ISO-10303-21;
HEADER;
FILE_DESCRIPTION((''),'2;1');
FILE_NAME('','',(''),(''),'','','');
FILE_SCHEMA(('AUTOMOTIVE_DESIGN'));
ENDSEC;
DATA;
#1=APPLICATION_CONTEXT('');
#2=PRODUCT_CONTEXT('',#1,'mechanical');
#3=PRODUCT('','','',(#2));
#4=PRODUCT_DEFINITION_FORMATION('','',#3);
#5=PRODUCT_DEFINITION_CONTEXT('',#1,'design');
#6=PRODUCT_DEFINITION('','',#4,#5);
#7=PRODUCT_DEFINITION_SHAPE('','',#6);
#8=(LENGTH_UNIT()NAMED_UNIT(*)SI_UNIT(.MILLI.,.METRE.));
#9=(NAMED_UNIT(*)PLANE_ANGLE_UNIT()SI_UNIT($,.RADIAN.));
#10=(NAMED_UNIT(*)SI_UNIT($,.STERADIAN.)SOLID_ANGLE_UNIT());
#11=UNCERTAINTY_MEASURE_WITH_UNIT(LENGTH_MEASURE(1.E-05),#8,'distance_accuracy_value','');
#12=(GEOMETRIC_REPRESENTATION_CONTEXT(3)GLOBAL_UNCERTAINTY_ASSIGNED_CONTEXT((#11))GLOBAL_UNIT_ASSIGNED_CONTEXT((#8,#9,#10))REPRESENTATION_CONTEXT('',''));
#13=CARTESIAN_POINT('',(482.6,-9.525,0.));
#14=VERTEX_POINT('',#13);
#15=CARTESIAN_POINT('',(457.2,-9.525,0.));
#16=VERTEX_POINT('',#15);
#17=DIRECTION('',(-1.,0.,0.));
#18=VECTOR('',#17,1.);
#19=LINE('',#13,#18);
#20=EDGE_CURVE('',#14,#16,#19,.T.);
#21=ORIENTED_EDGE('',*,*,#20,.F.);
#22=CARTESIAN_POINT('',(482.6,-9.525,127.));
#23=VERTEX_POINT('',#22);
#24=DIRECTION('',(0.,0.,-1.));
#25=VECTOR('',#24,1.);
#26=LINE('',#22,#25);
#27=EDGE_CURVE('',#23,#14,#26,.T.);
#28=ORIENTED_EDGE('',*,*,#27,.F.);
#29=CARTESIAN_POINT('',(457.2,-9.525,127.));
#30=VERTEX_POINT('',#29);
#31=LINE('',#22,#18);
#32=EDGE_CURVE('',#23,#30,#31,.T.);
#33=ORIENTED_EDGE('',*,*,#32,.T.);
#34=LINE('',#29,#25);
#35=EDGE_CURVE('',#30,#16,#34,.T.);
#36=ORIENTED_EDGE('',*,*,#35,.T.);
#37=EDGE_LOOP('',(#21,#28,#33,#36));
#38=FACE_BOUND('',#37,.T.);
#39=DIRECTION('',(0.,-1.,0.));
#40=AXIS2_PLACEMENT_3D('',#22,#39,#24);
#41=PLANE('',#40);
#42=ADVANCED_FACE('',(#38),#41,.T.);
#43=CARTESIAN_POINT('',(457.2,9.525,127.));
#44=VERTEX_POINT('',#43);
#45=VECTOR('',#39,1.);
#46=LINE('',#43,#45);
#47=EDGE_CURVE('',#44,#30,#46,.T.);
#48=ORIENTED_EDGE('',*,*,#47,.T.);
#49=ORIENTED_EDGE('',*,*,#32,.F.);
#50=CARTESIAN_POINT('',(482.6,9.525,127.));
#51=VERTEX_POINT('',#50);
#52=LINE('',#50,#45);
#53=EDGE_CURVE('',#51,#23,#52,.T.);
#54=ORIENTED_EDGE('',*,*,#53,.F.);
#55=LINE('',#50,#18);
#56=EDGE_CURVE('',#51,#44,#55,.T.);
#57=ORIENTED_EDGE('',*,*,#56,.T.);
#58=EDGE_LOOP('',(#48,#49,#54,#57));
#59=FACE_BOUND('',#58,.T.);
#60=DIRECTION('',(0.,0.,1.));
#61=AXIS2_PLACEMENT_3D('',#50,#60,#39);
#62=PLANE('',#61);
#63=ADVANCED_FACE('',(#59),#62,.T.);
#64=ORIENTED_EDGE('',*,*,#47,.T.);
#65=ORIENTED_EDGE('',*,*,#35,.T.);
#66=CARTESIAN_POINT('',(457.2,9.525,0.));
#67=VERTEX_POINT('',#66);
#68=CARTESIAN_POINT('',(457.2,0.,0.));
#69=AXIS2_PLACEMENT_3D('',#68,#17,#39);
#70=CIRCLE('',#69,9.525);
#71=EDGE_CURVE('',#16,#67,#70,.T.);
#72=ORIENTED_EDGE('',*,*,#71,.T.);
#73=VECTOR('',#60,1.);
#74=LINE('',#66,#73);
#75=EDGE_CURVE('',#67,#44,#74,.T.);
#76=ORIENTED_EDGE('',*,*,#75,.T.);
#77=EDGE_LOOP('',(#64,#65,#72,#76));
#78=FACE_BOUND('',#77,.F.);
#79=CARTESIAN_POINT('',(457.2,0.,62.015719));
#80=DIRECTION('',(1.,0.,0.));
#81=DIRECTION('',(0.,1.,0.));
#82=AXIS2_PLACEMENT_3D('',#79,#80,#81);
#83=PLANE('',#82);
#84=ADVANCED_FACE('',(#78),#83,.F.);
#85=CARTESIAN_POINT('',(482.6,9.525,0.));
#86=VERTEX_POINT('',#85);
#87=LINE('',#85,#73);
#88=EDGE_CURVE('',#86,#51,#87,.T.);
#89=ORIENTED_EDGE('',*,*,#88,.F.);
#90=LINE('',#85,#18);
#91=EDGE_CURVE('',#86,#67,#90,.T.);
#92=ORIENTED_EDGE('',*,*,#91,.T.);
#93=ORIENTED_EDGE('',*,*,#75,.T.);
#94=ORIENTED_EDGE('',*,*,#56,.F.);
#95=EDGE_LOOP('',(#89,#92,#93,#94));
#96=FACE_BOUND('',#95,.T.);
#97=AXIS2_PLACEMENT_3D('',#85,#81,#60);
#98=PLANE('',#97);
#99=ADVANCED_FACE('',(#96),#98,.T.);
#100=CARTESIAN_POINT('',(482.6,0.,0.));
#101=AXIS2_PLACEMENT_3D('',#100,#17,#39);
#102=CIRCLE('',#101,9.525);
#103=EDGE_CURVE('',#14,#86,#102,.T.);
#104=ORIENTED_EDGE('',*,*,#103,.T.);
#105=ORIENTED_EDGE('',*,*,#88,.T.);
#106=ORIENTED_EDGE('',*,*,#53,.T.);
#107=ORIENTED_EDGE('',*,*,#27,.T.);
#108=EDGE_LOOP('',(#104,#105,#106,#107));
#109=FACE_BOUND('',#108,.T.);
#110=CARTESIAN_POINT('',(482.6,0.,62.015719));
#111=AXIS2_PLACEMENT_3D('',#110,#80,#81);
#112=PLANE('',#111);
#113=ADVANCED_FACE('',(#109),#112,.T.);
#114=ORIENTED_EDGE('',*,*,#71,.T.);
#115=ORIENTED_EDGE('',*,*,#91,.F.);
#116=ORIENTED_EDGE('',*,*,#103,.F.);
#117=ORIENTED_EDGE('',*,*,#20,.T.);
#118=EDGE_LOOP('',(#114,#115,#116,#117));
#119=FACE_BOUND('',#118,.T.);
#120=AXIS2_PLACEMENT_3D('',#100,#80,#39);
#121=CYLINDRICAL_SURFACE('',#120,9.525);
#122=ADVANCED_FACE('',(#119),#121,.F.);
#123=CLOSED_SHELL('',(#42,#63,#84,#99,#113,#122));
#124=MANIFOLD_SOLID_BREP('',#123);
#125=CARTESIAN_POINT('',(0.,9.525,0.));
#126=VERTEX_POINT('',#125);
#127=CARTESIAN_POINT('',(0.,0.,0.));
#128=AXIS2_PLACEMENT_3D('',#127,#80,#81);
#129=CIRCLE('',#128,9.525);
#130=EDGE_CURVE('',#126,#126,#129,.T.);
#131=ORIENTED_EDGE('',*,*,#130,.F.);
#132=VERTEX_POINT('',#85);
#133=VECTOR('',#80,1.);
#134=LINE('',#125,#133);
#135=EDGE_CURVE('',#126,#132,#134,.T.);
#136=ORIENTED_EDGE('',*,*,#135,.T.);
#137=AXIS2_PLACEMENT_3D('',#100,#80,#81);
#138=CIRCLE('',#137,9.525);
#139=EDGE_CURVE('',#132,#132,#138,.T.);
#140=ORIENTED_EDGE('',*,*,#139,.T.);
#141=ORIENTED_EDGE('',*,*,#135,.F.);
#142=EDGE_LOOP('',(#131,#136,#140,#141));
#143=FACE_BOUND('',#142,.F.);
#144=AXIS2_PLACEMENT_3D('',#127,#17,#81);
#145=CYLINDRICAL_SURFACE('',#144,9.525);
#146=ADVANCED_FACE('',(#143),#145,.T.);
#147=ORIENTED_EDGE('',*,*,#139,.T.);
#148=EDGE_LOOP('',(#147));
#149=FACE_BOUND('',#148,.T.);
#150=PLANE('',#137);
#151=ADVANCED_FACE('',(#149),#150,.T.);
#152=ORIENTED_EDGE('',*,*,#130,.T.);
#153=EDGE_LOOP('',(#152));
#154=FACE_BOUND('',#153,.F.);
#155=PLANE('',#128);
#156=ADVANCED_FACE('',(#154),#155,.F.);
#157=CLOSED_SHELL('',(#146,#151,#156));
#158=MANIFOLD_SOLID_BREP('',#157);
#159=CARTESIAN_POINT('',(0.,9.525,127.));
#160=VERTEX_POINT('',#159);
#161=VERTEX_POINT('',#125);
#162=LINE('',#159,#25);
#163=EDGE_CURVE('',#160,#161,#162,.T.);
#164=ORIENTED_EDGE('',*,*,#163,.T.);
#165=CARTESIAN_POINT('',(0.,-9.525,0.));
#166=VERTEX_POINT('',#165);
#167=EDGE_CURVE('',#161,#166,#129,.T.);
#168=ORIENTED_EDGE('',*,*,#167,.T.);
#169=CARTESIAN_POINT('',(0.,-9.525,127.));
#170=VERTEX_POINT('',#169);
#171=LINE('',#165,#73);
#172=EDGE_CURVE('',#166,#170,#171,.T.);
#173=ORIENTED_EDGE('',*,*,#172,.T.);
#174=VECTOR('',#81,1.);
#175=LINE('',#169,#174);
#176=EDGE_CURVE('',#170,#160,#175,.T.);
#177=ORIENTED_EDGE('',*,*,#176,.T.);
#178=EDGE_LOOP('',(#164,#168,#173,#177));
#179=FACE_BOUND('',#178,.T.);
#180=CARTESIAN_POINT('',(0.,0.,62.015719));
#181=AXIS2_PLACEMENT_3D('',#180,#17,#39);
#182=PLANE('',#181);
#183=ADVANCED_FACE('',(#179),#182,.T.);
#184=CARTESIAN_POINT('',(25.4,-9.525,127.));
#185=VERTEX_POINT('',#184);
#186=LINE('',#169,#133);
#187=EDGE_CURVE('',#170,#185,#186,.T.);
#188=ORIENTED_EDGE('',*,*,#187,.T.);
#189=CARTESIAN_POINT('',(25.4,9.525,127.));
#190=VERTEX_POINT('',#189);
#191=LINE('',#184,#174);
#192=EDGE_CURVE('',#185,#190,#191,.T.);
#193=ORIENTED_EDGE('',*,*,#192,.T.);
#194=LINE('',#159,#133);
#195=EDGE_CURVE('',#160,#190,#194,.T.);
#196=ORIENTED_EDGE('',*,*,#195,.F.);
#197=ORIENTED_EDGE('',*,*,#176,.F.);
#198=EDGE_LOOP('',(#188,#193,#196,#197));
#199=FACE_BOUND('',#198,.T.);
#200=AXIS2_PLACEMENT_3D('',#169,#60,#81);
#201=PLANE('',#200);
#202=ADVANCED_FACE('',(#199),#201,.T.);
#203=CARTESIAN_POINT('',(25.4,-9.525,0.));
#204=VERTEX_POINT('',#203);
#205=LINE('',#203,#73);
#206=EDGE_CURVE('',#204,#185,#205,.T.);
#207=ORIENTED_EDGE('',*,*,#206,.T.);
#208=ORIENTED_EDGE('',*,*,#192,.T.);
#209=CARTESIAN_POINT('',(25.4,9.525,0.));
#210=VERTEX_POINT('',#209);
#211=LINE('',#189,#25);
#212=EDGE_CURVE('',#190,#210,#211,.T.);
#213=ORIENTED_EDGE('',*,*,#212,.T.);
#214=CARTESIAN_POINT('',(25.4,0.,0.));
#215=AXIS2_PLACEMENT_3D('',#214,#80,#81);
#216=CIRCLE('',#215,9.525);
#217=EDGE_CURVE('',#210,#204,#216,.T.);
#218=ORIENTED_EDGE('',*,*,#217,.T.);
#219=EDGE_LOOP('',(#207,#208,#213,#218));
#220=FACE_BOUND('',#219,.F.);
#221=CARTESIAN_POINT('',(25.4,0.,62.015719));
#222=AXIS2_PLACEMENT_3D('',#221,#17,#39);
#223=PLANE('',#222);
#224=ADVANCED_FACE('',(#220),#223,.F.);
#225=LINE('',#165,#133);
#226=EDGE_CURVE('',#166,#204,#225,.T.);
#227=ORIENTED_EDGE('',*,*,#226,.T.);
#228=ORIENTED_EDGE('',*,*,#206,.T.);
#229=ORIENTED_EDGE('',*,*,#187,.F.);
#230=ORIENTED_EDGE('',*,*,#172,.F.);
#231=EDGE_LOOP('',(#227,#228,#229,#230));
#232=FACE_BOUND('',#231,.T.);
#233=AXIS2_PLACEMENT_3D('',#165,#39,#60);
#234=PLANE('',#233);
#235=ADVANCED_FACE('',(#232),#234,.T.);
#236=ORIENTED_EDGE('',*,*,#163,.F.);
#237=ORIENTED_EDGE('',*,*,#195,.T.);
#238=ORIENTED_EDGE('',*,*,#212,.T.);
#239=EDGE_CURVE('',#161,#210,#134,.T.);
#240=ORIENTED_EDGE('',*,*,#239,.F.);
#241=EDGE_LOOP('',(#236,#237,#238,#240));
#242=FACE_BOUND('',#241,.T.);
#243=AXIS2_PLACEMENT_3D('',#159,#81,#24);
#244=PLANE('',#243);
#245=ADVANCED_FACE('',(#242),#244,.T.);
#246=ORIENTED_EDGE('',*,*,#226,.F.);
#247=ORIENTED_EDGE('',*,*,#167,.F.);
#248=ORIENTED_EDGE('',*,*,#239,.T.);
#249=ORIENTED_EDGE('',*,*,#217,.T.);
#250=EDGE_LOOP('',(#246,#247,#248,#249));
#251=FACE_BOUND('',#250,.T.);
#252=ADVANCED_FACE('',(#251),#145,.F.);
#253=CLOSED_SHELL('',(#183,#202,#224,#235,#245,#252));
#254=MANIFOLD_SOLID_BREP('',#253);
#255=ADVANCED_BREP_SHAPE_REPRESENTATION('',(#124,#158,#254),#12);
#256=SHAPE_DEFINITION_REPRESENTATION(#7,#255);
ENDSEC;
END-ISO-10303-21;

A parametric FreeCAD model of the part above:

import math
import FreeCAD as App
import Part
import Sketcher
Q = App.Units.Quantity

doc = App.newDocument("Part")
params = doc.addObject("Spreadsheet::Sheet", "Params")
for row, (alias, value) in enumerate([
    ("sketch1_diameter", "0.75 in"),
    ("pad1_length", "19 in"),
    ("sketch2_height", "5 in"),
    ("sketch2_radius", "0.375 in"),
    ("pad2_length", "1 in"),
    ("sketch3_height", "5 in"),
    ("sketch3_radius", "0.375 in"),
    ("pad3_length", "1 in"),
], start=1):
    params.set(f"A{row}", alias)
    params.set(f"B{row}", "=" + value)
    params.setAlias(f"B{row}", alias)

body = doc.addObject("PartDesign::Body", "Body")

# Sketch on YZ plane
sketch1 = body.newObject("Sketcher::SketchObject", "Sketch")
sketch1.AttachmentSupport = (doc.getObject("YZ_Plane"), [""])
sketch1.MapMode = "FlatFace"
sketch1.addGeometry(Part.Circle(App.Vector(0, 0, 0), App.Vector(0, 0, 1), 9.525), False)
sketch1.addConstraint(Sketcher.Constraint("Coincident", 0, 3, -1, 1))
sketch1.addConstraint(Sketcher.Constraint("Diameter", 0, Q("0.75 in")))
sketch1.setExpression("Constraints[1]", "Params.sketch1_diameter")
pad1 = body.newObject("PartDesign::Pad", "Pad")
pad1.Profile = sketch1
pad1.setExpression("Length", "Params.pad1_length")
body2 = doc.addObject("PartDesign::Body", "Body001")

# Sketch on YZ plane
sketch2 = body2.newObject("Sketcher::SketchObject", "Sketch001")
sketch2.AttachmentSupport = (doc.getObject("YZ_Plane001"), [""])
sketch2.MapMode = "FlatFace"
sketch2.addGeometry(Part.LineSegment(App.Vector(9.525, 127, 0), App.Vector(9.525, 0, 0)), False)
sketch2.addGeometry(Part.ArcOfCircle(Part.Circle(App.Vector(0, 0, 0), App.Vector(0, 0, 1), 9.525), math.radians(0), math.radians(180)), False)
sketch2.addGeometry(Part.LineSegment(App.Vector(-9.525, 0, 0), App.Vector(-9.525, 127, 0)), False)
sketch2.addGeometry(Part.LineSegment(App.Vector(-9.525, 127, 0), App.Vector(9.525, 127, 0)), False)
sketch2.addConstraint(Sketcher.Constraint("Tangent", 0, 2, 1, 1))
sketch2.addConstraint(Sketcher.Constraint("Tangent", 1, 2, 2, 1))
sketch2.addConstraint(Sketcher.Constraint("Coincident", 2, 2, 3, 1))
sketch2.addConstraint(Sketcher.Constraint("Coincident", 3, 2, 0, 1))
sketch2.addConstraint(Sketcher.Constraint("Vertical", 0))
sketch2.addConstraint(Sketcher.Constraint("Vertical", 2))
sketch2.addConstraint(Sketcher.Constraint("Horizontal", 3))
sketch2.addConstraint(Sketcher.Constraint("Coincident", 1, 3, -1, 1))
sketch2.addConstraint(Sketcher.Constraint("DistanceY", 0, 2, 0, 1, Q("5 in")))
sketch2.addConstraint(Sketcher.Constraint("Radius", 1, Q("0.375 in")))
sketch2.setExpression("Constraints[8]", "Params.sketch2_height")
sketch2.setExpression("Constraints[9]", "Params.sketch2_radius")
pad2 = body2.newObject("PartDesign::Pad", "Pad001")
pad2.Profile = sketch2
pad2.setExpression("Length", "Params.pad2_length")
body3 = doc.addObject("PartDesign::Body", "Body002")

# Sketch on YZ plane
sketch3 = body3.newObject("Sketcher::SketchObject", "Sketch002")
sketch3.AttachmentSupport = (doc.getObject("YZ_Plane002"), [""])
sketch3.MapMode = "FlatFace"
sketch3.AttachmentOffset = App.Placement(App.Vector(0, 0, 19 * 25.4), App.Rotation())
sketch3.addGeometry(Part.LineSegment(App.Vector(-9.525, 127, 0), App.Vector(-9.525, 0, 0)), False)
sketch3.addGeometry(Part.ArcOfCircle(Part.Circle(App.Vector(0, 0, 0), App.Vector(0, 0, 1), 9.525), math.radians(0), math.radians(180)), False)
sketch3.addGeometry(Part.LineSegment(App.Vector(9.525, 0, 0), App.Vector(9.525, 127, 0)), False)
sketch3.addGeometry(Part.LineSegment(App.Vector(9.525, 127, 0), App.Vector(-9.525, 127, 0)), False)
sketch3.addConstraint(Sketcher.Constraint("Tangent", 0, 2, 1, 2))
sketch3.addConstraint(Sketcher.Constraint("Tangent", 1, 1, 2, 1))
sketch3.addConstraint(Sketcher.Constraint("Coincident", 2, 2, 3, 1))
sketch3.addConstraint(Sketcher.Constraint("Coincident", 3, 2, 0, 1))
sketch3.addConstraint(Sketcher.Constraint("Vertical", 0))
sketch3.addConstraint(Sketcher.Constraint("Vertical", 2))
sketch3.addConstraint(Sketcher.Constraint("Horizontal", 3))
sketch3.addConstraint(Sketcher.Constraint("Coincident", 1, 3, -1, 1))
sketch3.addConstraint(Sketcher.Constraint("DistanceY", 0, 2, 0, 1, Q("5 in")))
sketch3.addConstraint(Sketcher.Constraint("Radius", 1, Q("0.375 in")))
sketch3.setExpression("Constraints[8]", "Params.sketch3_height")
sketch3.setExpression("Constraints[9]", "Params.sketch3_radius")
pad3 = body3.newObject("PartDesign::Pad", "Pad002")
pad3.Profile = sketch3
pad3.setExpression("Length", "Params.pad3_length")
pad3.Reversed = True

doc.recompute()
